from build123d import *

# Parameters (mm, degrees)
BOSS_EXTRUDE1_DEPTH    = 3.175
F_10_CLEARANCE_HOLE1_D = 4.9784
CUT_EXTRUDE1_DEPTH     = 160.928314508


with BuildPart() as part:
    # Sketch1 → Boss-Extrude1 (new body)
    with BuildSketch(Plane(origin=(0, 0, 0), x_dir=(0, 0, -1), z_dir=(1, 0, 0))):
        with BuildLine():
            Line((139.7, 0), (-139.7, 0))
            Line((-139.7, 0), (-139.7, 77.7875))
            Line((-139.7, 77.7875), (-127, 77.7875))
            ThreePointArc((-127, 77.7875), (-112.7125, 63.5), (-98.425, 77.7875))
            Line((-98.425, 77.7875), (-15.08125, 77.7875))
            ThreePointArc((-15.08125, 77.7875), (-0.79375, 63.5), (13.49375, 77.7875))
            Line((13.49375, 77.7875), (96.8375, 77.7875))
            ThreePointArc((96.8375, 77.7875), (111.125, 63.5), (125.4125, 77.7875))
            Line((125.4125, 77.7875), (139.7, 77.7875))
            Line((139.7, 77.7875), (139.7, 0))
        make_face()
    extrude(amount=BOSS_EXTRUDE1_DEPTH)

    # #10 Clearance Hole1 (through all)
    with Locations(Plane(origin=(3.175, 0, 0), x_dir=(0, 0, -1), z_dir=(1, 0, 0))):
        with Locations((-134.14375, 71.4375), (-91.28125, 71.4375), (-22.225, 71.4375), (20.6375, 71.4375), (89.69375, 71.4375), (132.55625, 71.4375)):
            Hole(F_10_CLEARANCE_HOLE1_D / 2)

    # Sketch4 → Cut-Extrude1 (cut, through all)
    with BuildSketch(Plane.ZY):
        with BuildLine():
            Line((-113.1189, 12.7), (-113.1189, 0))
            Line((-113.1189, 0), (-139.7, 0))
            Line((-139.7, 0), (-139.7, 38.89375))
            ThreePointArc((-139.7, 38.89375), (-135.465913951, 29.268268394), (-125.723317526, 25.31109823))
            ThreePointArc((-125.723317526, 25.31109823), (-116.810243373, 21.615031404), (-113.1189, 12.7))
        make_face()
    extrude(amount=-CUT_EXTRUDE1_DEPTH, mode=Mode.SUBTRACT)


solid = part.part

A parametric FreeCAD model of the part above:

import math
import FreeCAD as App
import Part
import Sketcher
from FreeCAD import Vector
Q = App.Units.Quantity

doc = App.newDocument("Part")
body = doc.addObject("PartDesign::Body", "Body")

sketch1 = body.newObject("Sketcher::SketchObject", "Sketch")
sketch1.AttachmentSupport = (doc.getObject("YZ_Plane"), [""])
sketch1.MapMode = "FlatFace"
sketch1.addGeometry([
    Part.LineSegment(Vector(0, 140, 0), Vector(0, -140, 0)),
    Part.LineSegment(Vector(0, -140, 0), Vector(78, -140, 0)),
    Part.LineSegment(Vector(78, -140, 0), Vector(78, -125, 0)),
    Part.ArcOfCircle(Part.Circle(Vector(78, -111, 0), Vector(0, 0, 1), 14), math.radians(90), math.radians(270)),
    Part.LineSegment(Vector(78, -97, 0), Vector(78, -13, 0)),
    Part.ArcOfCircle(Part.Circle(Vector(78, 1, 0), Vector(0, 0, 1), 14), math.radians(90), math.radians(270)),
    Part.LineSegment(Vector(78, 15, 0), Vector(78, 98, 0)),
    Part.ArcOfCircle(Part.Circle(Vector(78, 113, 0), Vector(0, 0, 1), 14), math.radians(90), math.radians(270)),
    Part.LineSegment(Vector(78, 127, 0), Vector(78, 140, 0)),
    Part.LineSegment(Vector(78, 140, 0), Vector(0, 140, 0)),
], False)
sketch1.addConstraint([
    Sketcher.Constraint("Coincident", 0, 2, 1, 1),
    Sketcher.Constraint("Coincident", 1, 2, 2, 1),
    Sketcher.Constraint("Coincident", 2, 2, 3, 2),
    Sketcher.Constraint("Coincident", 3, 1, 4, 1),
    Sketcher.Constraint("Coincident", 4, 2, 5, 2),
    Sketcher.Constraint("Coincident", 5, 1, 6, 1),
    Sketcher.Constraint("Coincident", 6, 2, 7, 2),
    Sketcher.Constraint("Coincident", 7, 1, 8, 1),
    Sketcher.Constraint("Coincident", 8, 2, 9, 1),
    Sketcher.Constraint("Coincident", 9, 2, 0, 1),
    Sketcher.Constraint("Vertical", 0),
    Sketcher.Constraint("Horizontal", 1),
    Sketcher.Constraint("Vertical", 2),
    Sketcher.Constraint("Vertical", 4),
    Sketcher.Constraint("Vertical", 6),
    Sketcher.Constraint("Vertical", 8),
    Sketcher.Constraint("Horizontal", 9),
    Sketcher.Constraint("Equal", 3, 5),
    Sketcher.Constraint("Equal", 5, 7),
    Sketcher.Constraint("Symmetric", 0, 2, 9, 2, -1, 1),
    Sketcher.Constraint("Vertical", 3, 3, 5, 3),
    Sketcher.Constraint("Vertical", 5, 3, 7, 3),
    Sketcher.Constraint("Vertical", 7, 3, 1, 2),
    Sketcher.Constraint("Vertical", 2, 2, 3, 1),
    Sketcher.Constraint("Vertical", 4, 2, 5, 1),
    Sketcher.Constraint("Vertical", 6, 2, 7, 1),
    Sketcher.Constraint("Equal", 4, 6),
    Sketcher.Constraint("DistanceY", 0, 2, 0, 1, Q("11 in")),
    Sketcher.Constraint("DistanceY", 8, 1, 8, 2, Q("0.5 in")),
    Sketcher.Constraint("Radius", 3, Q("0.5625 in")),
    Sketcher.Constraint("DistanceX", 1, 1, 1, 2, Q("3.0625 in")),
    Sketcher.Constraint("DistanceY", 2, 1, 2, 2, Q("0.5625 in")),
])
pad1 = body.newObject("PartDesign::Pad", "Pad")
pad1.Profile = sketch1
pad1.Length = Q("0.125 in")

sketch2 = body.newObject("Sketcher::SketchObject", "Sketch001")
sketch2.AttachmentSupport = (doc.getObject("YZ_Plane"), [""])
sketch2.MapMode = "FlatFace"
sketch2.AttachmentOffset = App.Placement(Vector(0, 0, 0.125 * 25.4), App.Rotation())
sketch2.addGeometry([
    Part.Circle(Vector(71.4, 134.1, 0), Vector(0, 0, 1), 2.5),
    Part.Circle(Vector(71.4, 91.3, 0), Vector(0, 0, 1), 2.5),
    Part.Circle(Vector(71.4, 22.2, 0), Vector(0, 0, 1), 2.5),
    Part.Circle(Vector(71.4, -20.6, 0), Vector(0, 0, 1), 2.5),
    Part.Circle(Vector(71.4, -89.7, 0), Vector(0, 0, 1), 2.5),
    Part.Circle(Vector(71.4, -132.6, 0), Vector(0, 0, 1), 2.5),
], False)
sketch2.addConstraint([
    Sketcher.Constraint("Equal", 0, 1),
    Sketcher.Constraint("Equal", 1, 2),
    Sketcher.Constraint("Equal", 2, 3),
    Sketcher.Constraint("Equal", 3, 4),
    Sketcher.Constraint("Equal", 4, 5),
    Sketcher.Constraint("Vertical", 0, 3, 1, 3),
    Sketcher.Constraint("Vertical", 1, 3, 2, 3),
    Sketcher.Constraint("Vertical", 2, 3, 3, 3),
    Sketcher.Constraint("Vertical", 3, 3, 4, 3),
    Sketcher.Constraint("Vertical", 4, 3, 5, 3),
    Sketcher.Constraint("Diameter", 0, Q("0.196 in")),
    Sketcher.Constraint("DistanceY", 5, 3, 0, 3, Q("10.5 in")),
    Sketcher.Constraint("DistanceX", -1, 1, 0, 3, Q("2.8125 in")),
    Sketcher.Constraint("DistanceY", -1, 1, 0, 3, Q("5.28125 in")),
    Sketcher.Constraint("DistanceY", -1, 1, 1, 3, Q("3.59375 in")),
    Sketcher.Constraint("DistanceY", -1, 1, 2, 3, Q("0.875 in")),
    Sketcher.Constraint("DistanceY", 3, 3, -1, 1, Q("0.8125 in")),
    Sketcher.Constraint("DistanceY", 4, 3, -1, 1, Q("3.53125 in")),
])
doc.recompute()
hole = body.newObject("PartDesign::Hole", "Hole")
hole.Profile = sketch2
hole.ThreadType = "None"
hole.Diameter = Q("0.196 in")
hole.DepthType = "ThroughAll"

sketch3 = body.newObject("Sketcher::SketchObject", "Sketch002")
sketch3.AttachmentSupport = (doc.getObject("YZ_Plane"), [""])
sketch3.MapMode = "FlatFace"
sketch3.addGeometry([
    Part.LineSegment(Vector(0, -113, 0), Vector(13, -113, 0)),
    Part.ArcOfCircle(Part.Circle(Vector(13, -126, 0), Vector(0, 0, 1), 13), math.radians(0), math.radians(90)),
    Part.ArcOfCircle(Part.Circle(Vector(39, -126, 0), Vector(0, 0, 1), 14), math.radians(-180), math.radians(-92)),
    Part.LineSegment(Vector(39, -140, 0), Vector(0, -140, 0)),
    Part.LineSegment(Vector(0, -140, 0), Vector(0, -113, 0)),
], False)
sketch3.addConstraint([
    Sketcher.Constraint("Tangent", 0, 2, 1, 2),
    Sketcher.Constraint("Tangent", 1, 1, 2, 1),
    Sketcher.Constraint("Coincident", 2, 2, 3, 1),
    Sketcher.Constraint("Coincident", 3, 2, 4, 1),
    Sketcher.Constraint("Coincident", 4, 2, 0, 1),
    Sketcher.Constraint("Horizontal", 0),
    Sketcher.Constraint("Horizontal", 3),
    Sketcher.Constraint("Vertical", 4),
    Sketcher.Constraint("PointOnObject", 3, 2, -2),
    Sketcher.Constraint("DistanceX", 0, 1, 0, 2, Q("0.5 in")),
    Sketcher.Constraint("DistanceY", 2, 2, -1, 1, Q("5.5 in")),
    Sketcher.Constraint("Radius", 1, Q("0.4965 in")),
    Sketcher.Constraint("DistanceX", 3, 2, 3, 1, Q("1.53125 in")),
    Sketcher.Constraint("DistanceY", 1, 3, -1, 1, Q("4.95 in")),
    Sketcher.Constraint("Radius", 2, 13.990028),
])
pocket1 = body.newObject("PartDesign::Pocket", "Pocket")
pocket1.Profile = sketch3
pocket1.Type = "ThroughAll"
pocket1.Reversed = True

doc.recompute()
